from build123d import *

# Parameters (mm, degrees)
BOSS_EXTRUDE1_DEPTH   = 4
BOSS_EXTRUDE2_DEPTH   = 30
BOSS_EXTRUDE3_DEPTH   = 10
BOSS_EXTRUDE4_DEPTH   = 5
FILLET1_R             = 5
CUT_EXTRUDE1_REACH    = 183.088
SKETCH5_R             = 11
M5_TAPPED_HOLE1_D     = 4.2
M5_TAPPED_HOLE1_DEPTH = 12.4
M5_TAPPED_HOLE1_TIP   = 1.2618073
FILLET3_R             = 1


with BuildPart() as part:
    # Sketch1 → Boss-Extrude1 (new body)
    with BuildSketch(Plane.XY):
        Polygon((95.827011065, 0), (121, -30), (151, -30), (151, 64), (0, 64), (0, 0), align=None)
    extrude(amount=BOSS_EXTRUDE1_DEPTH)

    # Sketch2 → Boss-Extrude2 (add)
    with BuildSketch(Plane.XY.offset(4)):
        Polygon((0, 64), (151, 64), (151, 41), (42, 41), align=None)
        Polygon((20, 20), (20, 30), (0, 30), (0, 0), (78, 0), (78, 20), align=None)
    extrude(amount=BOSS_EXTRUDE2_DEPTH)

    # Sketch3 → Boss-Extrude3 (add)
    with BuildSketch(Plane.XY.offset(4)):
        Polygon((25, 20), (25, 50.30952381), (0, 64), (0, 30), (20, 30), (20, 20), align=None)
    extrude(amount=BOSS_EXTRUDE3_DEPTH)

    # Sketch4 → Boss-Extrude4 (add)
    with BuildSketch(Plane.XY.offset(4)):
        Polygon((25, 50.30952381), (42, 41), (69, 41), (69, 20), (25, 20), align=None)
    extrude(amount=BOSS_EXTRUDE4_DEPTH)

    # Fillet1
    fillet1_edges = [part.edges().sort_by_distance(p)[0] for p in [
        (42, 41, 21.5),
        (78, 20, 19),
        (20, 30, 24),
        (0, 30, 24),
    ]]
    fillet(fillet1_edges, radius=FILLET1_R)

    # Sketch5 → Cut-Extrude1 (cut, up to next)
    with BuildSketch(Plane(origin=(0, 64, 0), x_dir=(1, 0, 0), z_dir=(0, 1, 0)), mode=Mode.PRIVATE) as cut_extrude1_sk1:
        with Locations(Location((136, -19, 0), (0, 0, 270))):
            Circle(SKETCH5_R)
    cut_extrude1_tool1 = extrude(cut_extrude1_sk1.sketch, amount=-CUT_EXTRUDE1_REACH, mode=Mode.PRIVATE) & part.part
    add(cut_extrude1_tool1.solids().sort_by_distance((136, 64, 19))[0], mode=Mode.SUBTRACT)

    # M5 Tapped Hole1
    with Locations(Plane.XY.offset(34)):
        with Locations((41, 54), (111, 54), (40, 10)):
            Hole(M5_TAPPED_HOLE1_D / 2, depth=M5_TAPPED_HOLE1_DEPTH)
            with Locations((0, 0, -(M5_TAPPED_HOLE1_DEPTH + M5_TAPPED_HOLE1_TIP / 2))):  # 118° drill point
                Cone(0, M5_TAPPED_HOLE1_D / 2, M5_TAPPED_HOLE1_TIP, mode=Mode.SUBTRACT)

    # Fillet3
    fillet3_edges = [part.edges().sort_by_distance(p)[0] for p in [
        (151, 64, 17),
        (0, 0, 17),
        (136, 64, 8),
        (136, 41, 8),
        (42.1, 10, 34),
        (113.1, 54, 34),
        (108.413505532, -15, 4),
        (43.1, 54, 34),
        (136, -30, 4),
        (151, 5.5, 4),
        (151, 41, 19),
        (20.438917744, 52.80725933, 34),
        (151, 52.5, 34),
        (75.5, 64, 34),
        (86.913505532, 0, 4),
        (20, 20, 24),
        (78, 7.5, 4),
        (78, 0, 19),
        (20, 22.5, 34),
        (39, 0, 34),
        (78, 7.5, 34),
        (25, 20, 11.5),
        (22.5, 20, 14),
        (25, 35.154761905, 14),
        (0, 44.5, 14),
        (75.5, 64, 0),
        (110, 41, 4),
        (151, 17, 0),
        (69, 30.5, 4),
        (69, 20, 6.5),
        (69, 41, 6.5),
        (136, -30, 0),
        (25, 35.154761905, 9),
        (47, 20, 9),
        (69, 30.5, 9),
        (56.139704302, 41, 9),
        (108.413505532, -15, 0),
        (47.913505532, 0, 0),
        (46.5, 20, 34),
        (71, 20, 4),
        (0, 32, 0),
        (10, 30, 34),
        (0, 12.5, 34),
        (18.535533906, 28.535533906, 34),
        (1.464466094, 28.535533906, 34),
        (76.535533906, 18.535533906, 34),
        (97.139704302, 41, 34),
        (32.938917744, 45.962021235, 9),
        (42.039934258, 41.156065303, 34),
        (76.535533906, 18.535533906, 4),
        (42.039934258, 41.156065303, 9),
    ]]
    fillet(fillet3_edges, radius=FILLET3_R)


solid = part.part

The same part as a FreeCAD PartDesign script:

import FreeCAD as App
import Part
import Sketcher
from FreeCAD import Vector
Q = App.Units.Quantity


def edges_at(feature, points):
    """Names of the edges that pass closest to the given points."""
    edges = feature.Shape.Edges
    near = lambda p: min(range(len(edges)), key=lambda i: edges[i].distToShape(Part.Vertex(*p))[0])
    return sorted({f"Edge{near(p) + 1}" for p in points})

doc = App.newDocument("Part")
body = doc.addObject("PartDesign::Body", "Body")

# Sketch on XY plane
sketch1 = doc.addObject("Sketcher::SketchObject", "Sketch")
body.addObject(sketch1)
sketch1.AttachmentSupport = (doc.XY_Plane, [""])
sketch1.MapMode = "FlatFace"
sketch1.addGeometry(Part.LineSegment(Vector(95.827011, 0, 0), Vector(121, -30, 0)), False)
sketch1.addGeometry(Part.LineSegment(Vector(121, -30, 0), Vector(151, -30, 0)), False)
sketch1.addGeometry(Part.LineSegment(Vector(151, -30, 0), Vector(151, 64, 0)), False)
sketch1.addGeometry(Part.LineSegment(Vector(151, 64, 0), Vector(0, 64, 0)), False)
sketch1.addGeometry(Part.LineSegment(Vector(0, 64, 0), Vector(0, 0, 0)), False)
sketch1.addGeometry(Part.LineSegment(Vector(0, 0, 0), Vector(95.827011, 0, 0)), False)
sketch1.addConstraint(Sketcher.Constraint("Coincident", 0, 2, 1, 1))
sketch1.addConstraint(Sketcher.Constraint("Coincident", 1, 2, 2, 1))
sketch1.addConstraint(Sketcher.Constraint("Coincident", 2, 2, 3, 1))
sketch1.addConstraint(Sketcher.Constraint("Coincident", 3, 2, 4, 1))
sketch1.addConstraint(Sketcher.Constraint("Coincident", 4, 2, 5, 1))
sketch1.addConstraint(Sketcher.Constraint("Coincident", 5, 2, 0, 1))
sketch1.addConstraint(Sketcher.Constraint("Horizontal", 1))
sketch1.addConstraint(Sketcher.Constraint("Vertical", 2))
sketch1.addConstraint(Sketcher.Constraint("Horizontal", 3))
sketch1.addConstraint(Sketcher.Constraint("Vertical", 4))
sketch1.addConstraint(Sketcher.Constraint("Horizontal", 5))
sketch1.addConstraint(Sketcher.Constraint("Coincident", 4, 2, -1, 1))
sketch1.addConstraint(Sketcher.Constraint("DistanceX", 1, 1, 1, 2, Q("30 mm")))
sketch1.addConstraint(Sketcher.Constraint("DistanceX", 3, 2, 3, 1, Q("151 mm")))
sketch1.addConstraint(Sketcher.Constraint("DistanceY", 2, 1, 2, 2, Q("94 mm")))
sketch1.addConstraint(Sketcher.Constraint("DistanceY", 4, 2, 4, 1, Q("64 mm")))
sketch1.addConstraint(Sketcher.Constraint("Angle", 0, Q("-50 deg")))
pad1 = doc.addObject("PartDesign::Pad", "Pad")
body.addObject(pad1)
pad1.Profile = sketch1
pad1.Length = 4

# Sketch on XY plane
sketch2 = doc.addObject("Sketcher::SketchObject", "Sketch001")
body.addObject(sketch2)
sketch2.AttachmentSupport = (doc.XY_Plane, [""])
sketch2.MapMode = "FlatFace"
sketch2.AttachmentOffset = App.Placement(Vector(0, 0, 4), App.Rotation())
sketch2.addGeometry(Part.LineSegment(Vector(151, 64, 0), Vector(0, 64, 0)), False)
sketch2.addGeometry(Part.LineSegment(Vector(0, 64, 0), Vector(42, 41, 0)), False)
sketch2.addGeometry(Part.LineSegment(Vector(42, 41, 0), Vector(151, 41, 0)), False)
sketch2.addGeometry(Part.LineSegment(Vector(151, 41, 0), Vector(151, 64, 0)), False)
sketch2.addGeometry(Part.LineSegment(Vector(20, 20, 0), Vector(20, 30, 0)), False)
sketch2.addGeometry(Part.LineSegment(Vector(20, 30, 0), Vector(0, 30, 0)), False)
sketch2.addGeometry(Part.LineSegment(Vector(0, 30, 0), Vector(0, 0, 0)), False)
sketch2.addGeometry(Part.LineSegment(Vector(0, 0, 0), Vector(78, 0, 0)), False)
sketch2.addGeometry(Part.LineSegment(Vector(78, 0, 0), Vector(78, 20, 0)), False)
sketch2.addGeometry(Part.LineSegment(Vector(78, 20, 0), Vector(20, 20, 0)), False)
sketch2.addConstraint(Sketcher.Constraint("Coincident", 0, 2, 1, 1))
sketch2.addConstraint(Sketcher.Constraint("Coincident", 1, 2, 2, 1))
sketch2.addConstraint(Sketcher.Constraint("Coincident", 2, 2, 3, 1))
sketch2.addConstraint(Sketcher.Constraint("Coincident", 3, 2, 0, 1))
sketch2.addConstraint(Sketcher.Constraint("Coincident", 4, 2, 5, 1))
sketch2.addConstraint(Sketcher.Constraint("Coincident", 5, 2, 6, 1))
sketch2.addConstraint(Sketcher.Constraint("Coincident", 6, 2, 7, 1))
sketch2.addConstraint(Sketcher.Constraint("Coincident", 7, 2, 8, 1))
sketch2.addConstraint(Sketcher.Constraint("Coincident", 8, 2, 9, 1))
sketch2.addConstraint(Sketcher.Constraint("Coincident", 9, 2, 4, 1))
sketch2.addConstraint(Sketcher.Constraint("Horizontal", 0))
sketch2.addConstraint(Sketcher.Constraint("Horizontal", 2))
sketch2.addConstraint(Sketcher.Constraint("Vertical", 3))
sketch2.addConstraint(Sketcher.Constraint("Vertical", 4))
sketch2.addConstraint(Sketcher.Constraint("Horizontal", 5))
sketch2.addConstraint(Sketcher.Constraint("Vertical", 6))
sketch2.addConstraint(Sketcher.Constraint("Horizontal", 7))
sketch2.addConstraint(Sketcher.Constraint("Vertical", 8))
sketch2.addConstraint(Sketcher.Constraint("Horizontal", 9))
sketch2.addConstraint(Sketcher.Constraint("Coincident", 6, 2, -1, 1))
sketch2.addConstraint(Sketcher.Constraint("PointOnObject", 0, 2, -2))
sketch2.addConstraint(Sketcher.Constraint("Equal", 5, 8))
sketch2.addConstraint(Sketcher.Constraint("DistanceX", 0, 2, 0, 1, Q("151 mm")))
sketch2.addConstraint(Sketcher.Constraint("DistanceX", 2, 1, 2, 2, Q("109 mm")))
sketch2.addConstraint(Sketcher.Constraint("DistanceX", 5, 2, 5, 1, Q("20 mm")))
sketch2.addConstraint(Sketcher.Constraint("DistanceX", 7, 1, 7, 2, Q("78 mm")))
sketch2.addConstraint(Sketcher.Constraint("DistanceY", 3, 1, 3, 2, Q("23 mm")))
sketch2.addConstraint(Sketcher.Constraint("DistanceY", 4, 1, 4, 2, Q("10 mm")))
sketch2.addConstraint(Sketcher.Constraint("DistanceY", -1, 1, 0, 2, Q("64 mm")))
pad2 = doc.addObject("PartDesign::Pad", "Pad001")
body.addObject(pad2)
pad2.Profile = sketch2
pad2.Length = 30

# Sketch on XY plane
sketch3 = doc.addObject("Sketcher::SketchObject", "Sketch002")
body.addObject(sketch3)
sketch3.AttachmentSupport = (doc.XY_Plane, [""])
sketch3.MapMode = "FlatFace"
sketch3.AttachmentOffset = App.Placement(Vector(0, 0, 4), App.Rotation())
sketch3.addGeometry(Part.LineSegment(Vector(25, 20, 0), Vector(25, 50.309524, 0)), False)
sketch3.addGeometry(Part.LineSegment(Vector(25, 50.309524, 0), Vector(0, 64, 0)), False)
sketch3.addGeometry(Part.LineSegment(Vector(0, 64, 0), Vector(0, 30, 0)), False)
sketch3.addGeometry(Part.LineSegment(Vector(0, 30, 0), Vector(20, 30, 0)), False)
sketch3.addGeometry(Part.LineSegment(Vector(20, 30, 0), Vector(20, 20, 0)), False)
sketch3.addGeometry(Part.LineSegment(Vector(20, 20, 0), Vector(25, 20, 0)), False)
sketch3.addConstraint(Sketcher.Constraint("Coincident", 0, 2, 1, 1))
sketch3.addConstraint(Sketcher.Constraint("Coincident", 1, 2, 2, 1))
sketch3.addConstraint(Sketcher.Constraint("Coincident", 2, 2, 3, 1))
sketch3.addConstraint(Sketcher.Constraint("Coincident", 3, 2, 4, 1))
sketch3.addConstraint(Sketcher.Constraint("Coincident", 4, 2, 5, 1))
sketch3.addConstraint(Sketcher.Constraint("Coincident", 5, 2, 0, 1))
sketch3.addConstraint(Sketcher.Constraint("Vertical", 0))
sketch3.addConstraint(Sketcher.Constraint("Vertical", 2))
sketch3.addConstraint(Sketcher.Constraint("Horizontal", 3))
sketch3.addConstraint(Sketcher.Constraint("Vertical", 4))
sketch3.addConstraint(Sketcher.Constraint("Horizontal", 5))
sketch3.addConstraint(Sketcher.Constraint("PointOnObject", 1, 2, -2))
sketch3.addConstraint(Sketcher.Constraint("DistanceX", 3, 1, 3, 2, Q("20 mm")))
sketch3.addConstraint(Sketcher.Constraint("DistanceX", 5, 1, 5, 2, Q("5 mm")))
sketch3.addConstraint(Sketcher.Constraint("DistanceY", 2, 2, 2, 1, Q("34 mm")))
sketch3.addConstraint(Sketcher.Constraint("DistanceY", 4, 2, 4, 1, Q("10 mm")))
sketch3.addConstraint(Sketcher.Constraint("DistanceY", -1, 1, 1, 2, Q("64 mm")))
sketch3.addConstraint(Sketcher.Constraint("DistanceY", 0, 1, 0, 2, Q("30.309524 mm")))
pad3 = doc.addObject("PartDesign::Pad", "Pad002")
body.addObject(pad3)
pad3.Profile = sketch3
pad3.Length = 10

# Sketch on XY plane
sketch4 = doc.addObject("Sketcher::SketchObject", "Sketch003")
body.addObject(sketch4)
sketch4.AttachmentSupport = (doc.XY_Plane, [""])
sketch4.MapMode = "FlatFace"
sketch4.AttachmentOffset = App.Placement(Vector(0, 0, 4), App.Rotation())
sketch4.addGeometry(Part.LineSegment(Vector(42, 41, 0), Vector(25, 50.309524, 0)), False)
sketch4.addGeometry(Part.LineSegment(Vector(25, 50.309524, 0), Vector(25, 20, 0)), False)
sketch4.addGeometry(Part.LineSegment(Vector(25, 20, 0), Vector(69, 20, 0)), False)
sketch4.addGeometry(Part.LineSegment(Vector(69, 20, 0), Vector(69, 41, 0)), False)
sketch4.addGeometry(Part.LineSegment(Vector(69, 41, 0), Vector(42, 41, 0)), False)
sketch4.addConstraint(Sketcher.Constraint("Coincident", 0, 2, 1, 1))
sketch4.addConstraint(Sketcher.Constraint("Coincident", 1, 2, 2, 1))
sketch4.addConstraint(Sketcher.Constraint("Coincident", 2, 2, 3, 1))
sketch4.addConstraint(Sketcher.Constraint("Coincident", 3, 2, 4, 1))
sketch4.addConstraint(Sketcher.Constraint("Coincident", 4, 2, 0, 1))
sketch4.addConstraint(Sketcher.Constraint("Vertical", 1))
sketch4.addConstraint(Sketcher.Constraint("Horizontal", 2))
sketch4.addConstraint(Sketcher.Constraint("Vertical", 3))
sketch4.addConstraint(Sketcher.Constraint("Horizontal", 4))
sketch4.addConstraint(Sketcher.Constraint("DistanceX", 2, 1, 2, 2, Q("44 mm")))
sketch4.addConstraint(Sketcher.Constraint("DistanceX", 4, 2, 4, 1, Q("27 mm")))
sketch4.addConstraint(Sketcher.Constraint("DistanceY", 3, 1, 3, 2, Q("21 mm")))
sketch4.addConstraint(Sketcher.Constraint("DistanceX", -1, 1, 0, 2, Q("25 mm")))
sketch4.addConstraint(Sketcher.Constraint("DistanceY", -1, 1, 1, 2, Q("20 mm")))
sketch4.addConstraint(Sketcher.Constraint("DistanceY", 1, 2, 1, 1, Q("30.309524 mm")))
pad4 = doc.addObject("PartDesign::Pad", "Pad003")
body.addObject(pad4)
pad4.Profile = sketch4
pad4.Length = 5
doc.recompute()

fillet = doc.addObject("PartDesign::Fillet", "Fillet")
body.addObject(fillet)
fillet.Base = (pad4, edges_at(pad4, [
    (42, 41, 21.5),
    (78, 20, 19),
    (20, 30, 24),
    (0, 30, 24),
]))
fillet.Radius = 5

# Sketch on XZ plane
sketch5 = doc.addObject("Sketcher::SketchObject", "Sketch004")
body.addObject(sketch5)
sketch5.AttachmentSupport = (doc.XZ_Plane, [""])
sketch5.MapMode = "FlatFace"
sketch5.AttachmentOffset = App.Placement(Vector(0, 0, -64), App.Rotation())
sketch5.addGeometry(Part.Circle(Vector(136, 19, 0), Vector(0, 0, 1), 11), False)
sketch5.addConstraint(Sketcher.Constraint("Diameter", 0, Q("22 mm")))
sketch5.addConstraint(Sketcher.Constraint("DistanceX", -1, 1, 0, 3, Q("136 mm")))
sketch5.addConstraint(Sketcher.Constraint("DistanceY", -1, 1, 0, 3, Q("19 mm")))
pocket1 = doc.addObject("PartDesign::Pocket", "Pocket")
body.addObject(pocket1)
pocket1.Profile = sketch5
pocket1.Type = "UpToFirst"
pocket1.Reversed = True

# Sketch on XY plane
sketch6 = doc.addObject("Sketcher::SketchObject", "Sketch005")
body.addObject(sketch6)
sketch6.AttachmentSupport = (doc.XY_Plane, [""])
sketch6.MapMode = "FlatFace"
sketch6.AttachmentOffset = App.Placement(Vector(0, 0, 34), App.Rotation())
sketch6.addGeometry(Part.Circle(Vector(41, 54, 0), Vector(0, 0, 1), 2.1), False)
sketch6.addGeometry(Part.Circle(Vector(111, 54, 0), Vector(0, 0, 1), 2.1), False)
sketch6.addGeometry(Part.Circle(Vector(40, 10, 0), Vector(0, 0, 1), 2.1), False)
sketch6.addConstraint(Sketcher.Constraint("Equal", 0, 1))
sketch6.addConstraint(Sketcher.Constraint("Equal", 1, 2))
sketch6.addConstraint(Sketcher.Constraint("Horizontal", 0, 3, 1, 3))
sketch6.addConstraint(Sketcher.Constraint("Diameter", 0, Q("4.2 mm")))
sketch6.addConstraint(Sketcher.Constraint("DistanceX", -1, 1, 0, 3, Q("41 mm")))
sketch6.addConstraint(Sketcher.Constraint("DistanceY", -1, 1, 0, 3, Q("54 mm")))
sketch6.addConstraint(Sketcher.Constraint("DistanceX", -1, 1, 1, 3, Q("111 mm")))
sketch6.addConstraint(Sketcher.Constraint("DistanceX", -1, 1, 2, 3, Q("40 mm")))
sketch6.addConstraint(Sketcher.Constraint("DistanceY", -1, 1, 2, 3, Q("10 mm")))
doc.recompute()
hole = doc.addObject("PartDesign::Hole", "Hole")
body.addObject(hole)
hole.Profile = sketch6
hole.ThreadType = "None"
hole.Diameter = 4.2
hole.DepthType = "Dimension"
hole.Depth = 12.4
hole.DrillPoint = "Angled"
hole.DrillPointAngle = 118
doc.recompute()

fillet2 = doc.addObject("PartDesign::Fillet", "Fillet001")
body.addObject(fillet2)
fillet2.Base = (hole, edges_at(hole, [
    (151, 64, 17),
    (0, 0, 17),
    (136, 64, 8),
    (136, 41, 8),
    (42.1, 10, 34),
    (113.1, 54, 34),
    (108.414, -15, 4),
    (43.1, 54, 34),
    (136, -30, 4),
    (151, 5.5, 4),
    (151, 41, 19),
    (20.439, 52.807, 34),
    (151, 52.5, 34),
    (75.5, 64, 34),
    (86.914, 0, 4),
    (20, 20, 24),
    (78, 7.5, 4),
    (78, 0, 19),
    (20, 22.5, 34),
    (39, 0, 34),
    (78, 7.5, 34),
    (25, 20, 11.5),
    (22.5, 20, 14),
    (25, 35.155, 14),
    (0, 44.5, 14),
    (75.5, 64, 0),
    (110, 41, 4),
    (151, 17, 0),
    (69, 30.5, 4),
    (69, 20, 6.5),
    (69, 41, 6.5),
    (136, -30, 0),
    (25, 35.155, 9),
    (47, 20, 9),
    (69, 30.5, 9),
    (56.14, 41, 9),
    (108.414, -15, 0),
    (47.914, 0, 0),
    (46.5, 20, 34),
    (71, 20, 4),
    (0, 32, 0),
    (10, 30, 34),
    (0, 12.5, 34),
    (18.536, 28.536, 34),
    (1.464, 28.536, 34),
    (76.536, 18.536, 34),
    (97.14, 41, 34),
    (32.939, 45.962, 9),
    (42.04, 41.156, 34),
    (76.536, 18.536, 4),
    (42.04, 41.156, 9),
]))
fillet2.Radius = 1

doc.recompute()
